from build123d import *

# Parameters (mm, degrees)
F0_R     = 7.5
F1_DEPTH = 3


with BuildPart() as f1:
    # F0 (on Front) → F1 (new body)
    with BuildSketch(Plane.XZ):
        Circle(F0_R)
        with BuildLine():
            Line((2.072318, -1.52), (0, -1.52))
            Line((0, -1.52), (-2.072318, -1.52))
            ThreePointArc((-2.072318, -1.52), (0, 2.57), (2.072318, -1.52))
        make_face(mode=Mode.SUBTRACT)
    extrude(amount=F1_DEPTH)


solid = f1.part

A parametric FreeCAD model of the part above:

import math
import FreeCAD as App
import Part
import Sketcher

doc = App.newDocument("Part")
body = doc.addObject("PartDesign::Body", "Body")

# Sketch on XZ plane
sketch1 = body.newObject("Sketcher::SketchObject", "Sketch")
sketch1.AttachmentSupport = (doc.getObject("XZ_Plane"), [""])
sketch1.MapMode = "FlatFace"
sketch1.addGeometry([
    Part.Circle(App.Vector(0, 0, 0), App.Vector(0, 0, 1), 7.5),
    Part.ArcOfCircle(Part.Circle(App.Vector(0, 0, 0), App.Vector(0, 0, 1), 2.6), math.radians(-36), math.radians(216)),
    Part.LineSegment(App.Vector(2.1, -1.5, 0), App.Vector(-2.1, -1.5, 0)),
], False)
sketch1.addConstraint([
    Sketcher.Constraint("Coincident", 1, 1, 2, 1),
    Sketcher.Constraint("Coincident", 2, 2, 1, 2),
    Sketcher.Constraint("Horizontal", 2),
    Sketcher.Constraint("Coincident", 0, 3, -1, 1),
    Sketcher.Constraint("Coincident", 1, 3, -1, 1),
    Sketcher.Constraint("Diameter", 0, 15.0),
    Sketcher.Constraint("Radius", 1, 2.57),
    Sketcher.Constraint("DistanceY", 1, 1, -1, 1, 1.52),
])
pad1 = body.newObject("PartDesign::Pad", "Pad")
pad1.Profile = sketch1
pad1.Length = 3

doc.recompute()
